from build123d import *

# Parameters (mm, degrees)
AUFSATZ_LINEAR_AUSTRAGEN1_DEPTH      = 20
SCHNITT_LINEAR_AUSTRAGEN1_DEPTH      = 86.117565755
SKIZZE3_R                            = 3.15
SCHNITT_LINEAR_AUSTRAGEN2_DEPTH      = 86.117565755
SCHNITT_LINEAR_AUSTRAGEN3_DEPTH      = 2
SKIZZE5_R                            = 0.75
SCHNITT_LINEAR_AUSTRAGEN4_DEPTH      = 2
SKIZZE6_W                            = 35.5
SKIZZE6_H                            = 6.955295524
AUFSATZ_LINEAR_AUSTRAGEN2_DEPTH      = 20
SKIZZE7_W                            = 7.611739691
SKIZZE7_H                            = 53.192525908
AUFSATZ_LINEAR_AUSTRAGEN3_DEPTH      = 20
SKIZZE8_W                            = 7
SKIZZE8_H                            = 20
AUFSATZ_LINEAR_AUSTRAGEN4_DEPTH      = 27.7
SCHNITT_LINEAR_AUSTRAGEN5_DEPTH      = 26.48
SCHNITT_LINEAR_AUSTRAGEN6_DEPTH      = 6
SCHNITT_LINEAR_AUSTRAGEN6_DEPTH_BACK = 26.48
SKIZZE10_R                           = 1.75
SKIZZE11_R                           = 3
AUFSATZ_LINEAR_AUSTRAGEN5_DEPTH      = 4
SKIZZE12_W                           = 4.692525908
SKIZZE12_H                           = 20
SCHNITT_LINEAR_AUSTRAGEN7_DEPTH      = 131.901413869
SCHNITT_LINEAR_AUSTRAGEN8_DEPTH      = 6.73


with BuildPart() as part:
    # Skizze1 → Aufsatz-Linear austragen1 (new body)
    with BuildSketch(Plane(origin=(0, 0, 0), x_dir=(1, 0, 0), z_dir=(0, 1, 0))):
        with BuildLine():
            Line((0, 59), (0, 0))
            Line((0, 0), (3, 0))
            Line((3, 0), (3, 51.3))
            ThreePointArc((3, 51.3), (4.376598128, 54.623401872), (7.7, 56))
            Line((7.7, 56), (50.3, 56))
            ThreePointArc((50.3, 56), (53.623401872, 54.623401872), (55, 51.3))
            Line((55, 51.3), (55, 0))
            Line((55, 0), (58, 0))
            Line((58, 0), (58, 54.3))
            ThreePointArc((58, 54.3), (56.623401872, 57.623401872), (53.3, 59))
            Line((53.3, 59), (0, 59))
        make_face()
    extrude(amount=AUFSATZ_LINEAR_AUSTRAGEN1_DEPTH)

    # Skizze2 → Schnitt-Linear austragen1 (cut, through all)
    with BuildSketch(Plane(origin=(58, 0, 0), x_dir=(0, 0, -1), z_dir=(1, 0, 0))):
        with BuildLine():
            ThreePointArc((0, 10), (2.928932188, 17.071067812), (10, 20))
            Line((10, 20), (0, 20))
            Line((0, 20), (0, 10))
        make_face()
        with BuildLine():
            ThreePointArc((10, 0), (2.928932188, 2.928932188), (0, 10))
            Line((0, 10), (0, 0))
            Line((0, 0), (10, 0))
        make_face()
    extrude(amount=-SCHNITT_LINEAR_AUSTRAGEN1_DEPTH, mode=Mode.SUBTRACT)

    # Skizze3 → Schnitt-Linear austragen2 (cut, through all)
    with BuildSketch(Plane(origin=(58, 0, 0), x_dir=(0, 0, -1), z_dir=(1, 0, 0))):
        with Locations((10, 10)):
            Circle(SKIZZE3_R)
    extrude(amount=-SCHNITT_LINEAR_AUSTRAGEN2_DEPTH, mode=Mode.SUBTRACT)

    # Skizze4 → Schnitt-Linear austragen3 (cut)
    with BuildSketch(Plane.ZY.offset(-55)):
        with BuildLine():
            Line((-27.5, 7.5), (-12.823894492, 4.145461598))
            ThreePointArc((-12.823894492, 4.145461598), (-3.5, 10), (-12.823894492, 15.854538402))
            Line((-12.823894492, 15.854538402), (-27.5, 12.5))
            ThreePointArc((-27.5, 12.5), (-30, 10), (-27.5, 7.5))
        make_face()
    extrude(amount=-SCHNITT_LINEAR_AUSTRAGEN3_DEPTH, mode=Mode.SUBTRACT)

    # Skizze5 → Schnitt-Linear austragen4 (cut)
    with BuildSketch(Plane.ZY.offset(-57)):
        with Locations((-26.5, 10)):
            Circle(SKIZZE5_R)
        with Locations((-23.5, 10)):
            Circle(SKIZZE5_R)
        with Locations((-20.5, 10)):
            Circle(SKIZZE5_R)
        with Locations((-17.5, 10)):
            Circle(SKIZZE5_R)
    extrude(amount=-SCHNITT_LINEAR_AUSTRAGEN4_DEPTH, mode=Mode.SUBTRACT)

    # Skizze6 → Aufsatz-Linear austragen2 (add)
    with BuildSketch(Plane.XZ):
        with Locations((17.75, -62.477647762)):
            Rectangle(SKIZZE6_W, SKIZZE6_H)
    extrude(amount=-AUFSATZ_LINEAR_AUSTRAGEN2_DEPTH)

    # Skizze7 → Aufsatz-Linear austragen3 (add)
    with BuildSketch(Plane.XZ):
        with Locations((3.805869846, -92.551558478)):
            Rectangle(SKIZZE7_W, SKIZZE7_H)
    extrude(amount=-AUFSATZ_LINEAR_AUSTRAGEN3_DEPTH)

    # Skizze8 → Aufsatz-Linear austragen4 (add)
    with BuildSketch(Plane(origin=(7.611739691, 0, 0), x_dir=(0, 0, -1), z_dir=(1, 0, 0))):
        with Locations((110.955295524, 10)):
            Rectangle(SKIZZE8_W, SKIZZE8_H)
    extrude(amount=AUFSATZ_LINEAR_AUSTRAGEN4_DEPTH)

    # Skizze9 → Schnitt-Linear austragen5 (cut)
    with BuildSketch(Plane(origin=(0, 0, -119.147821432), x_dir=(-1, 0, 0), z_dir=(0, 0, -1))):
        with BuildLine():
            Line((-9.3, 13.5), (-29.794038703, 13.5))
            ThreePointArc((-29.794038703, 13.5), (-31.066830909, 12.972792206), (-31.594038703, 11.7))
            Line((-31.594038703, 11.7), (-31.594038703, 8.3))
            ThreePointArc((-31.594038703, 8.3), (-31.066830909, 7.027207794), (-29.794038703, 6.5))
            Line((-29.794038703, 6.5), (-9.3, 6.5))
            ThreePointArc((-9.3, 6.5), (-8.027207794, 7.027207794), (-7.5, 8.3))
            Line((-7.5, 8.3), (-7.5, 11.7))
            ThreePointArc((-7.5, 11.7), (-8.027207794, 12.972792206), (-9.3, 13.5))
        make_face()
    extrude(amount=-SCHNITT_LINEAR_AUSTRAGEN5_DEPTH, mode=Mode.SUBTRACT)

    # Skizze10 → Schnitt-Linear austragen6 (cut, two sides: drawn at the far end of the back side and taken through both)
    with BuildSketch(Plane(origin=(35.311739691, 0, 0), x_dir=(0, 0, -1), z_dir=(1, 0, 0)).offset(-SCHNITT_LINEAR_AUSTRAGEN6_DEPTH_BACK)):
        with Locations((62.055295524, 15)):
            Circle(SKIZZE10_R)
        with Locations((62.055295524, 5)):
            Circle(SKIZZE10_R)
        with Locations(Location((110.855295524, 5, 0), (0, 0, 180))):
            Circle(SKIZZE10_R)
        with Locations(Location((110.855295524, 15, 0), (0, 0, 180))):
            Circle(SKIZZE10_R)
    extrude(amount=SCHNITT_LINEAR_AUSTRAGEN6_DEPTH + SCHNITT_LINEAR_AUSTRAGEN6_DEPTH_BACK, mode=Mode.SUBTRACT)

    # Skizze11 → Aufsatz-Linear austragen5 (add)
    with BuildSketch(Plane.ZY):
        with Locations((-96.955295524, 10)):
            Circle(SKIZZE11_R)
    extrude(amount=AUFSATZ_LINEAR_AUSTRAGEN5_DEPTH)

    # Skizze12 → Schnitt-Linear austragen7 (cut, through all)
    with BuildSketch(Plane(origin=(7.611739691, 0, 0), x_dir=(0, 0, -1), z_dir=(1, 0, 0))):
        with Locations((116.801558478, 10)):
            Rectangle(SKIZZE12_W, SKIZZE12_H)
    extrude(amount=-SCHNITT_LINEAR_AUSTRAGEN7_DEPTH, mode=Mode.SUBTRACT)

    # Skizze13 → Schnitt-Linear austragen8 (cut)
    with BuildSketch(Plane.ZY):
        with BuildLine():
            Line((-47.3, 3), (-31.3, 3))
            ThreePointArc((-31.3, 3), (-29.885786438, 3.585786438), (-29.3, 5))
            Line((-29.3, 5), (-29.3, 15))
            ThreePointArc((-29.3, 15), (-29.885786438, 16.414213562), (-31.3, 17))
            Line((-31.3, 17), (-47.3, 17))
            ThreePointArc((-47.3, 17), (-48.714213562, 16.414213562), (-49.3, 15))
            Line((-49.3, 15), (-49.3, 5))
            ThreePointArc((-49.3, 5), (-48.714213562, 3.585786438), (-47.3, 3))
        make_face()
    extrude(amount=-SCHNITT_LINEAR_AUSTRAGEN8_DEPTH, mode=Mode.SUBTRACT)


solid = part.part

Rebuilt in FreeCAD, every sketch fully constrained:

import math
import FreeCAD as App
import Part
import Sketcher
Q = App.Units.Quantity

doc = App.newDocument("Part")
params = doc.addObject("Spreadsheet::Sheet", "Params")
for row, (alias, value) in enumerate([
    ("sketch1_radius", "4.7 mm"),
    ("sketch1_width", "3 mm"),
    ("sketch1_height", "59 mm"),
    ("sketch1_width2", "42.6 mm"),
    ("sketch1_height2", "51.3 mm"),
    ("pad1_length", "20 mm"),
    ("sketch2_radius", "10 mm"),
    ("sketch3_diameter", "6.3 mm"),
    ("sketch4_radius", "6.5 mm"),
    ("sketch4_radius2", "2.5 mm"),
    ("pocket3_length", "2 mm"),
    ("sketch5_diameter", "1.5 mm"),
    ("pocket4_length", "2 mm"),
    ("sketch6_width", "35.5 mm"),
    ("pad2_length", "20 mm"),
    ("pad3_length", "20 mm"),
    ("sketch8_width", "20 mm"),
    ("sketch8_height", "7 mm"),
    ("pad4_length", "27.7 mm"),
    ("sketch9_radius", "1.8 mm"),
    ("sketch9_height", "3.4 mm"),
    ("pocket5_length", "26.48 mm"),
    ("sketch10_diameter", "3.5 mm"),
    ("pocket6_length", "6 mm"),
    ("pocket6_length2", "26.48 mm"),
    ("sketch11_diameter", "6 mm"),
    ("pad5_length", "4 mm"),
    ("sketch12_width", "20 mm"),
    ("sketch13_radius", "2 mm"),
    ("sketch13_width", "10 mm"),
    ("sketch13_height", "16 mm"),
    ("pocket8_length", "6.73 mm"),
], start=1):
    params.set(f"A{row}", alias)
    params.set(f"B{row}", "=" + value)
    params.setAlias(f"B{row}", alias)

body = doc.addObject("PartDesign::Body", "Body")

# Sketch on XZ plane
sketch1 = body.newObject("Sketcher::SketchObject", "Sketch")
sketch1.AttachmentSupport = (doc.getObject("XZ_Plane"), [""])
sketch1.MapMode = "FlatFace"
sketch1.addGeometry([
    Part.LineSegment(App.Vector(0, -59, 0), App.Vector(0, 0, 0)),  # 0
    Part.LineSegment(App.Vector(0, 0, 0), App.Vector(3, 0, 0)),  # 1
    Part.LineSegment(App.Vector(3, 0, 0), App.Vector(3, -51.3, 0)),  # 2
    Part.ArcOfCircle(Part.Circle(App.Vector(7.7, -51.3, 0), App.Vector(0, 0, 1), 4.7), math.radians(180), math.radians(270)),  # 3
    Part.LineSegment(App.Vector(7.7, -56, 0), App.Vector(50.3, -56, 0)),  # 4
    Part.ArcOfCircle(Part.Circle(App.Vector(50.3, -51.3, 0), App.Vector(0, 0, 1), 4.7), math.radians(-90), math.radians(0)),  # 5
    Part.LineSegment(App.Vector(55, -51.3, 0), App.Vector(55, 0, 0)),  # 6
    Part.LineSegment(App.Vector(55, 0, 0), App.Vector(58, 0, 0)),  # 7
    Part.LineSegment(App.Vector(58, 0, 0), App.Vector(58, -54.3, 0)),  # 8
    Part.ArcOfCircle(Part.Circle(App.Vector(53.3, -54.3, 0), App.Vector(0, 0, 1), 4.7), math.radians(-90), math.radians(0)),  # 9
    Part.LineSegment(App.Vector(53.3, -59, 0), App.Vector(0, -59, 0)),  # 10
], False)
sketch1.addConstraint([
    Sketcher.Constraint("Coincident", 0, 2, 1, 1),
    Sketcher.Constraint("Coincident", 1, 2, 2, 1),
    Sketcher.Constraint("Tangent", 2, 2, 3, 1),
    Sketcher.Constraint("Tangent", 3, 2, 4, 1),
    Sketcher.Constraint("Tangent", 4, 2, 5, 1),
    Sketcher.Constraint("Tangent", 5, 2, 6, 1),
    Sketcher.Constraint("Coincident", 6, 2, 7, 1),
    Sketcher.Constraint("Coincident", 7, 2, 8, 1),
    Sketcher.Constraint("Tangent", 8, 2, 9, 2),
    Sketcher.Constraint("Tangent", 9, 1, 10, 1),
    Sketcher.Constraint("Coincident", 10, 2, 0, 1),
    Sketcher.Constraint("Vertical", 0),
    Sketcher.Constraint("Horizontal", 1),
    Sketcher.Constraint("Vertical", 2),
    Sketcher.Constraint("Horizontal", 4),
    Sketcher.Constraint("Vertical", 6),
    Sketcher.Constraint("Horizontal", 7),
    Sketcher.Constraint("Vertical", 8),
    Sketcher.Constraint("Horizontal", 10),
    Sketcher.Constraint("Coincident", 0, 2, -1, 1),
    Sketcher.Constraint("Equal", 3, 5),
    Sketcher.Constraint("Equal", 5, 9),
    Sketcher.Constraint("PointOnObject", 6, 2, -1),
    Sketcher.Constraint("Equal", 1, 7),
    Sketcher.Constraint("Radius", 3, Q("4.7 mm")),
    Sketcher.Constraint("DistanceX", 1, 1, 1, 2, Q("3 mm")),
    Sketcher.Constraint("DistanceY", 0, 1, 0, 2, Q("59 mm")),
    Sketcher.Constraint("DistanceX", 4, 1, 4, 2, Q("42.6 mm")),
    Sketcher.Constraint("DistanceY", 2, 2, 2, 1, Q("51.3 mm")),
])
sketch1.setExpression("Constraints[24]", "Params.sketch1_radius")
sketch1.setExpression("Constraints[25]", "Params.sketch1_width")
sketch1.setExpression("Constraints[26]", "Params.sketch1_height")
sketch1.setExpression("Constraints[27]", "Params.sketch1_width2")
sketch1.setExpression("Constraints[28]", "Params.sketch1_height2")
pad1 = body.newObject("PartDesign::Pad", "Pad")
pad1.Profile = sketch1
pad1.setExpression("Length", "Params.pad1_length")
pad1.Reversed = True

# Sketch on YZ plane
sketch2 = body.newObject("Sketcher::SketchObject", "Sketch001")
sketch2.AttachmentSupport = (doc.getObject("YZ_Plane"), [""])
sketch2.MapMode = "FlatFace"
sketch2.AttachmentOffset = App.Placement(App.Vector(0, 0, 58), App.Rotation())
sketch2.addGeometry([
    Part.ArcOfCircle(Part.Circle(App.Vector(10, -10, 0), App.Vector(0, 0, 1), 10), math.radians(0), math.radians(90)),  # 0
    Part.LineSegment(App.Vector(20, -10, 0), App.Vector(20, 0, 0)),  # 1
    Part.LineSegment(App.Vector(20, 0, 0), App.Vector(10, 0, 0)),  # 2
    Part.ArcOfCircle(Part.Circle(App.Vector(10, -10, 0), App.Vector(0, 0, 1), 10), math.radians(90), math.radians(180)),  # 3
    Part.LineSegment(App.Vector(10, 0, 0), App.Vector(0, 0, 0)),  # 4
    Part.LineSegment(App.Vector(0, 0, 0), App.Vector(0, -10, 0)),  # 5
], False)
sketch2.addConstraint([
    Sketcher.Constraint("Tangent", 0, 1, 1, 1),
    Sketcher.Constraint("Coincident", 1, 2, 2, 1),
    Sketcher.Constraint("Tangent", 2, 2, 0, 2),
    Sketcher.Constraint("Tangent", 3, 1, 4, 1),
    Sketcher.Constraint("Coincident", 4, 2, 5, 1),
    Sketcher.Constraint("Tangent", 5, 2, 3, 2),
    Sketcher.Constraint("Vertical", 1),
    Sketcher.Constraint("Horizontal", 2),
    Sketcher.Constraint("Horizontal", 4),
    Sketcher.Constraint("Vertical", 5),
    Sketcher.Constraint("Coincident", 4, 2, -1, 1),
    Sketcher.Constraint("Coincident", 3, 3, 0, 3),
    Sketcher.Constraint("Equal", 0, 3),
    Sketcher.Constraint("Radius", 0, Q("10 mm")),
])
sketch2.setExpression("Constraints[13]", "Params.sketch2_radius")
pocket1 = body.newObject("PartDesign::Pocket", "Pocket")
pocket1.Profile = sketch2
pocket1.Type = "ThroughAll"

# Sketch on YZ plane
sketch3 = body.newObject("Sketcher::SketchObject", "Sketch002")
sketch3.AttachmentSupport = (doc.getObject("YZ_Plane"), [""])
sketch3.MapMode = "FlatFace"
sketch3.AttachmentOffset = App.Placement(App.Vector(0, 0, 58), App.Rotation())
sketch3.addGeometry(Part.Circle(App.Vector(10, -10, 0), App.Vector(0, 0, 1), 3.1), False)
sketch3.addConstraint([
    Sketcher.Constraint("Diameter", 0, Q("6.3 mm")),
    Sketcher.Constraint("DistanceX", -1, 1, 0, 3, Q("10 mm")),
    Sketcher.Constraint("DistanceY", 0, 3, -1, 1, Q("10 mm")),
])
sketch3.setExpression("Constraints[0]", "Params.sketch3_diameter")
pocket2 = body.newObject("PartDesign::Pocket", "Pocket001")
pocket2.Profile = sketch3
pocket2.Type = "ThroughAll"

# Sketch on YZ plane
sketch4 = body.newObject("Sketcher::SketchObject", "Sketch003")
sketch4.AttachmentSupport = (doc.getObject("YZ_Plane"), [""])
sketch4.MapMode = "FlatFace"
sketch4.AttachmentOffset = App.Placement(App.Vector(0, 0, 55), App.Rotation())
sketch4.addGeometry([
    Part.LineSegment(App.Vector(7.5, -27.5, 0), App.Vector(4.1, -12.8, 0)),
    Part.ArcOfCircle(Part.Circle(App.Vector(10, -10, 0), App.Vector(0, 0, 1), 6.5), math.radians(-26), math.radians(206)),
    Part.LineSegment(App.Vector(15.9, -12.8, 0), App.Vector(12.5, -27.5, 0)),
    Part.ArcOfCircle(Part.Circle(App.Vector(10, -27.5, 0), App.Vector(0, 0, 1), 2.5), math.radians(180), math.radians(360)),
], False)
sketch4.addConstraint([
    Sketcher.Constraint("Coincident", 0, 2, 1, 2),
    Sketcher.Constraint("Coincident", 1, 1, 2, 1),
    Sketcher.Constraint("Coincident", 2, 2, 3, 2),
    Sketcher.Constraint("Coincident", 3, 1, 0, 1),
    Sketcher.Constraint("Horizontal", 0, 2, 1, 1),
    Sketcher.Constraint("Horizontal", 3, 3, 2, 2),
    Sketcher.Constraint("Horizontal", 2, 2, 3, 1),
    Sketcher.Constraint("Vertical", 1, 3, 3, 3),
    Sketcher.Constraint("Radius", 1, Q("6.5 mm")),
    Sketcher.Constraint("Radius", 3, Q("2.5 mm")),
    Sketcher.Constraint("DistanceX", -1, 1, 1, 3, Q("10 mm")),
    Sketcher.Constraint("DistanceY", 1, 3, -1, 1, Q("10 mm")),
    Sketcher.Constraint("DistanceY", 3, 3, -1, 1, Q("27.5 mm")),
    Sketcher.Constraint("Distance", 0, Q("15.054601 mm")),
])
sketch4.setExpression("Constraints[8]", "Params.sketch4_radius")
sketch4.setExpression("Constraints[9]", "Params.sketch4_radius2")
pocket3 = body.newObject("PartDesign::Pocket", "Pocket002")
pocket3.Profile = sketch4
pocket3.setExpression("Length", "Params.pocket3_length")
pocket3.Reversed = True

# Sketch on YZ plane
sketch5 = body.newObject("Sketcher::SketchObject", "Sketch004")
sketch5.AttachmentSupport = (doc.getObject("YZ_Plane"), [""])
sketch5.MapMode = "FlatFace"
sketch5.AttachmentOffset = App.Placement(App.Vector(0, 0, 57), App.Rotation())
sketch5.addGeometry([
    Part.Circle(App.Vector(10, -26.5, 0), App.Vector(0, 0, 1), 0.8),
    Part.Circle(App.Vector(10, -23.5, 0), App.Vector(0, 0, 1), 0.8),
    Part.Circle(App.Vector(10, -20.5, 0), App.Vector(0, 0, 1), 0.8),
    Part.Circle(App.Vector(10, -17.5, 0), App.Vector(0, 0, 1), 0.8),
], False)
sketch5.addConstraint([
    Sketcher.Constraint("Equal", 0, 1),
    Sketcher.Constraint("Equal", 1, 2),
    Sketcher.Constraint("Equal", 2, 3),
    Sketcher.Constraint("Vertical", 0, 3, 1, 3),
    Sketcher.Constraint("Vertical", 1, 3, 2, 3),
    Sketcher.Constraint("Vertical", 2, 3, 3, 3),
    Sketcher.Constraint("Diameter", 0, Q("1.5 mm")),
    Sketcher.Constraint("DistanceX", -1, 1, 0, 3, Q("10 mm")),
    Sketcher.Constraint("DistanceY", 0, 3, 1, 3, Q("3 mm")),
    Sketcher.Constraint("DistanceY", 1, 3, 2, 3, Q("3 mm")),
    Sketcher.Constraint("DistanceY", 2, 3, 3, 3, Q("3 mm")),
    Sketcher.Constraint("DistanceY", 0, 3, -1, 1, Q("26.5 mm")),
])
sketch5.setExpression("Constraints[6]", "Params.sketch5_diameter")
pocket4 = body.newObject("PartDesign::Pocket", "Pocket003")
pocket4.Profile = sketch5
pocket4.setExpression("Length", "Params.pocket4_length")
pocket4.Reversed = True

# Sketch on XZ plane
sketch6 = body.newObject("Sketcher::SketchObject", "Sketch005")
sketch6.AttachmentSupport = (doc.getObject("XZ_Plane"), [""])
sketch6.MapMode = "FlatFace"
sketch6.addGeometry([
    Part.LineSegment(App.Vector(0, -59, 0), App.Vector(0, -66, 0)),
    Part.LineSegment(App.Vector(0, -66, 0), App.Vector(36, -66, 0)),
    Part.LineSegment(App.Vector(36, -66, 0), App.Vector(36, -59, 0)),
    Part.LineSegment(App.Vector(36, -59, 0), App.Vector(0, -59, 0)),
], False)
sketch6.addConstraint([
    Sketcher.Constraint("Coincident", 0, 2, 1, 1),
    Sketcher.Constraint("Coincident", 1, 2, 2, 1),
    Sketcher.Constraint("Coincident", 2, 2, 3, 1),
    Sketcher.Constraint("Coincident", 3, 2, 0, 1),
    Sketcher.Constraint("Vertical", 0),
    Sketcher.Constraint("Horizontal", 1),
    Sketcher.Constraint("Vertical", 2),
    Sketcher.Constraint("Horizontal", 3),
    Sketcher.Constraint("PointOnObject", 0, 2, -2),
    Sketcher.Constraint("DistanceX", 1, 1, 1, 2, Q("35.5 mm")),
    Sketcher.Constraint("DistanceY", 2, 2, -1, 1, Q("59 mm")),
    Sketcher.Constraint("DistanceY", 0, 2, 0, 1, Q("6.955296 mm")),
])
sketch6.setExpression("Constraints[9]", "Params.sketch6_width")
pad2 = body.newObject("PartDesign::Pad", "Pad001")
pad2.Profile = sketch6
pad2.setExpression("Length", "Params.pad2_length")
pad2.Reversed = True

# Sketch on XZ plane
sketch7 = body.newObject("Sketcher::SketchObject", "Sketch006")
sketch7.AttachmentSupport = (doc.getObject("XZ_Plane"), [""])
sketch7.MapMode = "FlatFace"
sketch7.addGeometry([
    Part.LineSegment(App.Vector(0, -66, 0), App.Vector(0, -119, 0)),
    Part.LineSegment(App.Vector(0, -119, 0), App.Vector(8, -119, 0)),
    Part.LineSegment(App.Vector(8, -119, 0), App.Vector(8, -66, 0)),
    Part.LineSegment(App.Vector(8, -66, 0), App.Vector(0, -66, 0)),
], False)
sketch7.addConstraint([
    Sketcher.Constraint("Coincident", 0, 2, 1, 1),
    Sketcher.Constraint("Coincident", 1, 2, 2, 1),
    Sketcher.Constraint("Coincident", 2, 2, 3, 1),
    Sketcher.Constraint("Coincident", 3, 2, 0, 1),
    Sketcher.Constraint("Vertical", 0),
    Sketcher.Constraint("Horizontal", 1),
    Sketcher.Constraint("Vertical", 2),
    Sketcher.Constraint("Horizontal", 3),
    Sketcher.Constraint("PointOnObject", 0, 2, -2),
    Sketcher.Constraint("DistanceX", 1, 1, 1, 2, Q("7.61174 mm")),
    Sketcher.Constraint("DistanceY", 0, 2, 0, 1, Q("53.192526 mm")),
    Sketcher.Constraint("DistanceY", 0, 2, -1, 1, Q("119.147821 mm")),
])
pad3 = body.newObject("PartDesign::Pad", "Pad002")
pad3.Profile = sketch7
pad3.setExpression("Length", "Params.pad3_length")
pad3.Reversed = True

# Sketch on YZ plane
sketch8 = body.newObject("Sketcher::SketchObject", "Sketch007")
sketch8.AttachmentSupport = (doc.getObject("YZ_Plane"), [""])
sketch8.MapMode = "FlatFace"
sketch8.AttachmentOffset = App.Placement(App.Vector(0, 0, 7.61174), App.Rotation())
sketch8.addGeometry([
    Part.LineSegment(App.Vector(20, -107, 0), App.Vector(0, -107, 0)),
    Part.LineSegment(App.Vector(0, -107, 0), App.Vector(0, -114, 0)),
    Part.LineSegment(App.Vector(0, -114, 0), App.Vector(20, -114, 0)),
    Part.LineSegment(App.Vector(20, -114, 0), App.Vector(20, -107, 0)),
], False)
sketch8.addConstraint([
    Sketcher.Constraint("Coincident", 0, 2, 1, 1),
    Sketcher.Constraint("Coincident", 1, 2, 2, 1),
    Sketcher.Constraint("Coincident", 2, 2, 3, 1),
    Sketcher.Constraint("Coincident", 3, 2, 0, 1),
    Sketcher.Constraint("Horizontal", 0),
    Sketcher.Constraint("Vertical", 1),
    Sketcher.Constraint("Horizontal", 2),
    Sketcher.Constraint("Vertical", 3),
    Sketcher.Constraint("PointOnObject", 0, 2, -2),
    Sketcher.Constraint("DistanceX", 0, 2, 0, 1, Q("20 mm")),
    Sketcher.Constraint("DistanceY", 1, 2, 1, 1, Q("7 mm")),
    Sketcher.Constraint("DistanceY", 0, 2, -1, 1, Q("107.455296 mm")),
])
sketch8.setExpression("Constraints[9]", "Params.sketch8_width")
sketch8.setExpression("Constraints[10]", "Params.sketch8_height")
pad4 = body.newObject("PartDesign::Pad", "Pad003")
pad4.Profile = sketch8
pad4.setExpression("Length", "Params.pad4_length")

# Sketch on XY plane
sketch9 = body.newObject("Sketcher::SketchObject", "Sketch008")
sketch9.AttachmentSupport = (doc.getObject("XY_Plane"), [""])
sketch9.MapMode = "FlatFace"
sketch9.AttachmentOffset = App.Placement(App.Vector(0, 0, -119.147821), App.Rotation())
sketch9.addGeometry([
    Part.LineSegment(App.Vector(9.3, 13.5, 0), App.Vector(29.8, 13.5, 0)),  # 0
    Part.ArcOfCircle(Part.Circle(App.Vector(29.8, 11.7, 0), App.Vector(0, 0, 1), 1.8), math.radians(0), math.radians(90)),  # 1
    Part.LineSegment(App.Vector(31.6, 11.7, 0), App.Vector(31.6, 8.3, 0)),  # 2
    Part.ArcOfCircle(Part.Circle(App.Vector(29.8, 8.3, 0), App.Vector(0, 0, 1), 1.8), math.radians(-90), math.radians(0)),  # 3
    Part.LineSegment(App.Vector(29.8, 6.5, 0), App.Vector(9.3, 6.5, 0)),  # 4
    Part.ArcOfCircle(Part.Circle(App.Vector(9.3, 8.3, 0), App.Vector(0, 0, 1), 1.8), math.radians(180), math.radians(270)),  # 5
    Part.LineSegment(App.Vector(7.5, 8.3, 0), App.Vector(7.5, 11.7, 0)),  # 6
    Part.ArcOfCircle(Part.Circle(App.Vector(9.3, 11.7, 0), App.Vector(0, 0, 1), 1.8), math.radians(90), math.radians(180)),  # 7
], False)
sketch9.addConstraint([
    Sketcher.Constraint("Tangent", 0, 2, 1, 2),
    Sketcher.Constraint("Tangent", 1, 1, 2, 1),
    Sketcher.Constraint("Tangent", 2, 2, 3, 2),
    Sketcher.Constraint("Tangent", 3, 1, 4, 1),
    Sketcher.Constraint("Tangent", 4, 2, 5, 2),
    Sketcher.Constraint("Tangent", 5, 1, 6, 1),
    Sketcher.Constraint("Tangent", 6, 2, 7, 2),
    Sketcher.Constraint("Tangent", 7, 1, 0, 1),
    Sketcher.Constraint("Horizontal", 0),
    Sketcher.Constraint("Vertical", 2),
    Sketcher.Constraint("Horizontal", 4),
    Sketcher.Constraint("Vertical", 6),
    Sketcher.Constraint("Equal", 1, 3),
    Sketcher.Constraint("Equal", 3, 5),
    Sketcher.Constraint("Equal", 5, 7),
    Sketcher.Constraint("Radius", 1, Q("1.8 mm")),
    Sketcher.Constraint("DistanceY", 2, 2, 2, 1, Q("3.4 mm")),
    Sketcher.Constraint("DistanceY", -1, 1, 1, 3, Q("11.7 mm")),
    Sketcher.Constraint("DistanceX", -1, 1, 5, 3, Q("9.3 mm")),
    Sketcher.Constraint("DistanceX", 0, 1, 0, 2, Q("20.494039 mm")),
])
sketch9.setExpression("Constraints[15]", "Params.sketch9_radius")
sketch9.setExpression("Constraints[16]", "Params.sketch9_height")
pocket5 = body.newObject("PartDesign::Pocket", "Pocket004")
pocket5.Profile = sketch9
pocket5.setExpression("Length", "Params.pocket5_length")
pocket5.Reversed = True

# Sketch on YZ plane
sketch10 = body.newObject("Sketcher::SketchObject", "Sketch009")
sketch10.AttachmentSupport = (doc.getObject("YZ_Plane"), [""])
sketch10.MapMode = "FlatFace"
sketch10.AttachmentOffset = App.Placement(App.Vector(0, 0, 35.31174), App.Rotation())
sketch10.addGeometry([
    Part.Circle(App.Vector(15, -62.1, 0), App.Vector(0, 0, 1), 1.8),
    Part.Circle(App.Vector(5, -62.1, 0), App.Vector(0, 0, 1), 1.8),
    Part.Circle(App.Vector(5, -110.9, 0), App.Vector(0, 0, 1), 1.8),
    Part.Circle(App.Vector(15, -110.9, 0), App.Vector(0, 0, 1), 1.8),
], False)
sketch10.addConstraint([
    Sketcher.Constraint("Equal", 0, 1),
    Sketcher.Constraint("Equal", 1, 2),
    Sketcher.Constraint("Equal", 2, 3),
    Sketcher.Constraint("Horizontal", 0, 3, 1, 3),
    Sketcher.Constraint("Horizontal", 2, 3, 3, 3),
    Sketcher.Constraint("Vertical", 1, 3, 2, 3),
    Sketcher.Constraint("Vertical", 0, 3, 3, 3),
    Sketcher.Constraint("Diameter", 0, Q("3.5 mm")),
    Sketcher.Constraint("DistanceX", -1, 1, 0, 3, Q("15 mm")),
    Sketcher.Constraint("DistanceX", -1, 1, 1, 3, Q("5 mm")),
    Sketcher.Constraint("DistanceY", 2, 3, 1, 3, Q("48.8 mm")),
    Sketcher.Constraint("DistanceY", 0, 3, -1, 1, Q("62.055296 mm")),
])
sketch10.setExpression("Constraints[7]", "Params.sketch10_diameter")
pocket6 = body.newObject("PartDesign::Pocket", "Pocket005")
pocket6.Profile = sketch10
pocket6.Type = "TwoLengths"
pocket6.setExpression("Length", "Params.pocket6_length")
pocket6.setExpression("Length2", "Params.pocket6_length2")
pocket6.Reversed = True

# Sketch on YZ plane
sketch11 = body.newObject("Sketcher::SketchObject", "Sketch010")
sketch11.AttachmentSupport = (doc.getObject("YZ_Plane"), [""])
sketch11.MapMode = "FlatFace"
sketch11.addGeometry(Part.Circle(App.Vector(10, -97, 0), App.Vector(0, 0, 1), 3), False)
sketch11.addConstraint([
    Sketcher.Constraint("Diameter", 0, Q("6 mm")),
    Sketcher.Constraint("DistanceX", -1, 1, 0, 3, Q("10 mm")),
    Sketcher.Constraint("DistanceY", 0, 3, -1, 1, Q("96.955296 mm")),
])
sketch11.setExpression("Constraints[0]", "Params.sketch11_diameter")
pad5 = body.newObject("PartDesign::Pad", "Pad004")
pad5.Profile = sketch11
pad5.setExpression("Length", "Params.pad5_length")
pad5.Reversed = True

# Sketch on YZ plane
sketch12 = body.newObject("Sketcher::SketchObject", "Sketch011")
sketch12.AttachmentSupport = (doc.getObject("YZ_Plane"), [""])
sketch12.MapMode = "FlatFace"
sketch12.AttachmentOffset = App.Placement(App.Vector(0, 0, 7.61174), App.Rotation())
sketch12.addGeometry([
    Part.LineSegment(App.Vector(20, -114.5, 0), App.Vector(0, -114.5, 0)),
    Part.LineSegment(App.Vector(0, -114.5, 0), App.Vector(0, -119.1, 0)),
    Part.LineSegment(App.Vector(0, -119.1, 0), App.Vector(20, -119.1, 0)),
    Part.LineSegment(App.Vector(20, -119.1, 0), App.Vector(20, -114.5, 0)),
], False)
sketch12.addConstraint([
    Sketcher.Constraint("Coincident", 0, 2, 1, 1),
    Sketcher.Constraint("Coincident", 1, 2, 2, 1),
    Sketcher.Constraint("Coincident", 2, 2, 3, 1),
    Sketcher.Constraint("Coincident", 3, 2, 0, 1),
    Sketcher.Constraint("Horizontal", 0),
    Sketcher.Constraint("Vertical", 1),
    Sketcher.Constraint("Horizontal", 2),
    Sketcher.Constraint("Vertical", 3),
    Sketcher.Constraint("PointOnObject", 0, 2, -2),
    Sketcher.Constraint("DistanceX", 0, 2, 0, 1, Q("20 mm")),
    Sketcher.Constraint("DistanceY", 1, 2, 1, 1, Q("4.692526 mm")),
    Sketcher.Constraint("DistanceY", 1, 2, -1, 1, Q("119.147821 mm")),
])
sketch12.setExpression("Constraints[9]", "Params.sketch12_width")
pocket7 = body.newObject("PartDesign::Pocket", "Pocket006")
pocket7.Profile = sketch12
pocket7.Type = "ThroughAll"

# Sketch on YZ plane
sketch13 = body.newObject("Sketcher::SketchObject", "Sketch012")
sketch13.AttachmentSupport = (doc.getObject("YZ_Plane"), [""])
sketch13.MapMode = "FlatFace"
sketch13.addGeometry([
    Part.LineSegment(App.Vector(3, -47.3, 0), App.Vector(3, -31.3, 0)),  # 0
    Part.ArcOfCircle(Part.Circle(App.Vector(5, -31.3, 0), App.Vector(0, 0, 1), 2), math.radians(90), math.radians(180)),  # 1
    Part.LineSegment(App.Vector(5, -29.3, 0), App.Vector(15, -29.3, 0)),  # 2
    Part.ArcOfCircle(Part.Circle(App.Vector(15, -31.3, 0), App.Vector(0, 0, 1), 2), math.radians(0), math.radians(90)),  # 3
    Part.LineSegment(App.Vector(17, -31.3, 0), App.Vector(17, -47.3, 0)),  # 4
    Part.ArcOfCircle(Part.Circle(App.Vector(15, -47.3, 0), App.Vector(0, 0, 1), 2), math.radians(-90), math.radians(0)),  # 5
    Part.LineSegment(App.Vector(15, -49.3, 0), App.Vector(5, -49.3, 0)),  # 6
    Part.ArcOfCircle(Part.Circle(App.Vector(5, -47.3, 0), App.Vector(0, 0, 1), 2), math.radians(-180), math.radians(-90)),  # 7
], False)
sketch13.addConstraint([
    Sketcher.Constraint("Tangent", 0, 2, 1, 2),
    Sketcher.Constraint("Tangent", 1, 1, 2, 1),
    Sketcher.Constraint("Tangent", 2, 2, 3, 2),
    Sketcher.Constraint("Tangent", 3, 1, 4, 1),
    Sketcher.Constraint("Tangent", 4, 2, 5, 2),
    Sketcher.Constraint("Tangent", 5, 1, 6, 1),
    Sketcher.Constraint("Tangent", 6, 2, 7, 2),
    Sketcher.Constraint("Tangent", 7, 1, 0, 1),
    Sketcher.Constraint("Vertical", 0),
    Sketcher.Constraint("Horizontal", 2),
    Sketcher.Constraint("Vertical", 4),
    Sketcher.Constraint("Horizontal", 6),
    Sketcher.Constraint("Equal", 1, 3),
    Sketcher.Constraint("Equal", 3, 5),
    Sketcher.Constraint("Equal", 5, 7),
    Sketcher.Constraint("Radius", 1, Q("2 mm")),
    Sketcher.Constraint("DistanceX", 2, 1, 2, 2, Q("10 mm")),
    Sketcher.Constraint("DistanceY", 0, 1, 0, 2, Q("16 mm")),
    Sketcher.Constraint("DistanceX", -1, 1, 1, 3, Q("5 mm")),
    Sketcher.Constraint("DistanceY", 1, 3, -1, 1, Q("31.3 mm")),
])
sketch13.setExpression("Constraints[15]", "Params.sketch13_radius")
sketch13.setExpression("Constraints[16]", "Params.sketch13_width")
sketch13.setExpression("Constraints[17]", "Params.sketch13_height")
pocket8 = body.newObject("PartDesign::Pocket", "Pocket007")
pocket8.Profile = sketch13
pocket8.setExpression("Length", "Params.pocket8_length")
pocket8.Reversed = True

doc.recompute()
